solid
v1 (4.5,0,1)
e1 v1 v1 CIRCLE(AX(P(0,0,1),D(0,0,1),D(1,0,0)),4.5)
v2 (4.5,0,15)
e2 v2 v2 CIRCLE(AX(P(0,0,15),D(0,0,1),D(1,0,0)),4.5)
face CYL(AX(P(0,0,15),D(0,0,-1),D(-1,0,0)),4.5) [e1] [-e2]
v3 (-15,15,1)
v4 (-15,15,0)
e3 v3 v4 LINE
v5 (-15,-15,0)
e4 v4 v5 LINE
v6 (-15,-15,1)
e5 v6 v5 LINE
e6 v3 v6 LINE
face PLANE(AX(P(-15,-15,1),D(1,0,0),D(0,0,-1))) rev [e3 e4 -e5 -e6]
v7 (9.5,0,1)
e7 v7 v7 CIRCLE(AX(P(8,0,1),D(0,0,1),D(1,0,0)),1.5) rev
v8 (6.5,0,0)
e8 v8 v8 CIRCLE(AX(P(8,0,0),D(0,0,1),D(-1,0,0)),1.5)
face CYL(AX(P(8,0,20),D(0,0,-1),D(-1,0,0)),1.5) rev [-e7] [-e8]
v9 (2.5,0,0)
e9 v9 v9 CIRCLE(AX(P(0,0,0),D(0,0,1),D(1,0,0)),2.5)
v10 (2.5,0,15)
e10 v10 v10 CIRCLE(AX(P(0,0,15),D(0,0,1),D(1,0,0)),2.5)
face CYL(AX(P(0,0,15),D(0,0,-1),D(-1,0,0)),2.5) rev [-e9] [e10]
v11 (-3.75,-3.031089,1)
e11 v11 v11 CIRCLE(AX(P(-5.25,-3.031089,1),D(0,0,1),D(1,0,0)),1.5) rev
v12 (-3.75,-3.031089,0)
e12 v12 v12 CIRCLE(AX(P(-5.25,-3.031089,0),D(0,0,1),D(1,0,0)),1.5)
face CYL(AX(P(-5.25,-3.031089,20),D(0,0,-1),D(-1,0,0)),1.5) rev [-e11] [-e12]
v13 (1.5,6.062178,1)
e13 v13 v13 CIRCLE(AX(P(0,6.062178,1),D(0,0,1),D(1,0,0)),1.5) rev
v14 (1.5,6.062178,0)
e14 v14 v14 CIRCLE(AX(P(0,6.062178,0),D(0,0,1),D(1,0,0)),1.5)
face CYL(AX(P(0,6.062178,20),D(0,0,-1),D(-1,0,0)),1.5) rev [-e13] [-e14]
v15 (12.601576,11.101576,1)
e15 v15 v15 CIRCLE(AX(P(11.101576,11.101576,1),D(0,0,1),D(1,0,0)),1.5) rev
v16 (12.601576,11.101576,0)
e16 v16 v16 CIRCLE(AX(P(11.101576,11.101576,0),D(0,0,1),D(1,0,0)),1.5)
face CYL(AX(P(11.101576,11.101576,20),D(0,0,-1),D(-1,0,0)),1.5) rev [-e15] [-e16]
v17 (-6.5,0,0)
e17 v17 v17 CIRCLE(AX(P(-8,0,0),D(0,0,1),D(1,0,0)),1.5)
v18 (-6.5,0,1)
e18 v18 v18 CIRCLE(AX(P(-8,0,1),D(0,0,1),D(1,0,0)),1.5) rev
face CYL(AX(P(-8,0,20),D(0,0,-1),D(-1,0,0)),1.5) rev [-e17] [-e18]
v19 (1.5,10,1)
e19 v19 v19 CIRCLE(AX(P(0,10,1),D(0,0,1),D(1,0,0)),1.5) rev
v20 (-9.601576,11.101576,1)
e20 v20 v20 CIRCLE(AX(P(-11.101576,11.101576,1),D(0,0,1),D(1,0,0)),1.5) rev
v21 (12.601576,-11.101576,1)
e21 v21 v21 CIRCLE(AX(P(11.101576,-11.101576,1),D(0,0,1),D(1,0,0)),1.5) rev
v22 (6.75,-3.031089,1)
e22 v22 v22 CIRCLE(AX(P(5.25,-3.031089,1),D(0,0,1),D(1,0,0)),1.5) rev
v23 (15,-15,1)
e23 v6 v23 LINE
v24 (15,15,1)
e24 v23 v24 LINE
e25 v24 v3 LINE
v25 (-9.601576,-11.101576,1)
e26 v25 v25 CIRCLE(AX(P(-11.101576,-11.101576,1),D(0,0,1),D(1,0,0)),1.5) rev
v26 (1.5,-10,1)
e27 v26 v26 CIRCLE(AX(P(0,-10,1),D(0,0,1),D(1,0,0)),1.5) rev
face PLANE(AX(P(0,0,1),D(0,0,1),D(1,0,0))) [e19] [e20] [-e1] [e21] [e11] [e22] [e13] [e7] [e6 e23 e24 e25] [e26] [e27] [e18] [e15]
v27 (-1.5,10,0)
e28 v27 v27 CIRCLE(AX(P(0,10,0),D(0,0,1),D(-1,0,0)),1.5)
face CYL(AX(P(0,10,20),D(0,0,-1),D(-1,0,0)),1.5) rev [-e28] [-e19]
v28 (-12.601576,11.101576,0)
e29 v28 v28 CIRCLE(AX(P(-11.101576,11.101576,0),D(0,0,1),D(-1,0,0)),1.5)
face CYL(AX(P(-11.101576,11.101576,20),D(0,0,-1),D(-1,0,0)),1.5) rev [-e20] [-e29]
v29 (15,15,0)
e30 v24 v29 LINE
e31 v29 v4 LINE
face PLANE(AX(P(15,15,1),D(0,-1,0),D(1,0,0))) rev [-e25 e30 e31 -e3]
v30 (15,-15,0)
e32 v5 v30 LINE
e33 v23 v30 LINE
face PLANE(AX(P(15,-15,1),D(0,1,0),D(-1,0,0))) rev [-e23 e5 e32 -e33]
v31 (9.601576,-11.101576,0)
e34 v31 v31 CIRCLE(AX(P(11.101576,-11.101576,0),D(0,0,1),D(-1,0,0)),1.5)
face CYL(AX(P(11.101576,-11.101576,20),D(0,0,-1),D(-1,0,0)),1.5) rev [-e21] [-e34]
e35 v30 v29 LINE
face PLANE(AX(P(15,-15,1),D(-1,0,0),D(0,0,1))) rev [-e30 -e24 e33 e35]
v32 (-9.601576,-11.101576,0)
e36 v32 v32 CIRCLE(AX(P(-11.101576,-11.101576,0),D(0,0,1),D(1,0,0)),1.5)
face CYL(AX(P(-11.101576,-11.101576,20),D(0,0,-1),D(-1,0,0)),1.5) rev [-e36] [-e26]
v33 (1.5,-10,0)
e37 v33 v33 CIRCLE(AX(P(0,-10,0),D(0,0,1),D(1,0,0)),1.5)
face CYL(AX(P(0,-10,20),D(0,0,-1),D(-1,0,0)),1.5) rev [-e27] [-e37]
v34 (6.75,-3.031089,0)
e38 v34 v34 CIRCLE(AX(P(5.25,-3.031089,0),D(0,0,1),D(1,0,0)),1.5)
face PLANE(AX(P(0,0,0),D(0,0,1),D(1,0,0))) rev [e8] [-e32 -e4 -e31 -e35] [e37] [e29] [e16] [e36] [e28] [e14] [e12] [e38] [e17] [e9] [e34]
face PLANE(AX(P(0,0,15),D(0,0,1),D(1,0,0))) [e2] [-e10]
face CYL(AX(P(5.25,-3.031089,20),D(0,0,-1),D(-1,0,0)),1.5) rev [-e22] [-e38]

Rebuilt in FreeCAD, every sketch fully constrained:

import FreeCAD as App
import Part
import Sketcher
from FreeCAD import Vector
Q = App.Units.Quantity

doc = App.newDocument("Part")
body = doc.addObject("PartDesign::Body", "Body")

sketch1 = doc.addObject("Sketcher::SketchObject", "Sketch")
body.addObject(sketch1)
sketch1.AttachmentSupport = (doc.XY_Plane, [""])
sketch1.MapMode = "FlatFace"
sketch1.addGeometry(Part.Circle(Vector(0, 0, 0), Vector(0, 0, 1), 4.5), False)
sketch1.addGeometry(Part.Circle(Vector(0, 0, 0), Vector(0, 0, 1), 2.5), False)
sketch1.addConstraint(Sketcher.Constraint("Coincident", 0, 3, -1, 1))
sketch1.addConstraint(Sketcher.Constraint("Coincident", 1, 3, -1, 1))
sketch1.addConstraint(Sketcher.Constraint("Diameter", 0, Q("9 mm")))
sketch1.addConstraint(Sketcher.Constraint("Diameter", 1, Q("5 mm")))
pad1 = doc.addObject("PartDesign::Pad", "Pad")
body.addObject(pad1)
pad1.Profile = sketch1
pad1.Length = 15

sketch2 = doc.addObject("Sketcher::SketchObject", "Sketch001")
body.addObject(sketch2)
sketch2.AttachmentSupport = (doc.XY_Plane, [""])
sketch2.MapMode = "FlatFace"
sketch2.addGeometry(Part.LineSegment(Vector(-15, 15, 0), Vector(-15, -15, 0)), False)
sketch2.addGeometry(Part.LineSegment(Vector(-15, -15, 0), Vector(15, -15, 0)), False)
sketch2.addGeometry(Part.LineSegment(Vector(15, -15, 0), Vector(15, 15, 0)), False)
sketch2.addGeometry(Part.LineSegment(Vector(15, 15, 0), Vector(-15, 15, 0)), False)
sketch2.addConstraint(Sketcher.Constraint("Coincident", 0, 2, 1, 1))
sketch2.addConstraint(Sketcher.Constraint("Coincident", 1, 2, 2, 1))
sketch2.addConstraint(Sketcher.Constraint("Coincident", 2, 2, 3, 1))
sketch2.addConstraint(Sketcher.Constraint("Coincident", 3, 2, 0, 1))
sketch2.addConstraint(Sketcher.Constraint("Vertical", 0))
sketch2.addConstraint(Sketcher.Constraint("Horizontal", 1))
sketch2.addConstraint(Sketcher.Constraint("Vertical", 2))
sketch2.addConstraint(Sketcher.Constraint("Horizontal", 3))
sketch2.addConstraint(Sketcher.Constraint("Symmetric", 0, 2, 2, 2, -1, 1))
sketch2.addConstraint(Sketcher.Constraint("Equal", 3, 0))
sketch2.addConstraint(Sketcher.Constraint("DistanceX", 1, 1, 1, 2, Q("30 mm")))
pad2 = doc.addObject("PartDesign::Pad", "Pad001")
body.addObject(pad2)
pad2.Profile = sketch2
pad2.Length = 1

sketch3 = doc.addObject("Sketcher::SketchObject", "Sketch002")
body.addObject(sketch3)
sketch3.AttachmentSupport = (doc.XY_Plane, [""])
sketch3.MapMode = "FlatFace"
sketch3.addGeometry(Part.Circle(Vector(-11.1, -11.1, 0), Vector(0, 0, 1), 1.5), False)
sketch3.addGeometry(Part.Circle(Vector(11.1, -11.1, 0), Vector(0, 0, 1), 1.5), False)
sketch3.addGeometry(Part.Circle(Vector(11.1, 11.1, 0), Vector(0, 0, 1), 1.5), False)
sketch3.addGeometry(Part.Circle(Vector(-11.1, 11.1, 0), Vector(0, 0, 1), 1.5), False)
sketch3.addGeometry(Part.Circle(Vector(0, -10, 0), Vector(0, 0, 1), 1.5), False)
sketch3.addGeometry(Part.Circle(Vector(0, 10, 0), Vector(0, 0, 1), 1.5), False)
sketch3.addGeometry(Part.Circle(Vector(-8, 0, 0), Vector(0, 0, 1), 1.5), False)
sketch3.addGeometry(Part.Circle(Vector(8, 0, 0), Vector(0, 0, 1), 1.5), False)
sketch3.addGeometry(Part.Circle(Vector(0, 6.1, 0), Vector(0, 0, 1), 1.5), False)
sketch3.addGeometry(Part.Circle(Vector(5.2, -3, 0), Vector(0, 0, 1), 1.5), False)
sketch3.addGeometry(Part.Circle(Vector(-5.2, -3, 0), Vector(0, 0, 1), 1.5), False)
sketch3.addGeometry(Part.Circle(Vector(0, 0, 0), Vector(0, 0, 1), 2.5), False)
sketch3.addConstraint(Sketcher.Constraint("Coincident", 11, 3, -1, 1))
sketch3.addConstraint(Sketcher.Constraint("Equal", 0, 1))
sketch3.addConstraint(Sketcher.Constraint("Equal", 1, 2))
sketch3.addConstraint(Sketcher.Constraint("Equal", 2, 3))
sketch3.addConstraint(Sketcher.Constraint("Equal", 3, 4))
sketch3.addConstraint(Sketcher.Constraint("Equal", 4, 5))
sketch3.addConstraint(Sketcher.Constraint("Equal", 5, 6))
sketch3.addConstraint(Sketcher.Constraint("Equal", 6, 7))
sketch3.addConstraint(Sketcher.Constraint("Equal", 7, 8))
sketch3.addConstraint(Sketcher.Constraint("Equal", 8, 9))
sketch3.addConstraint(Sketcher.Constraint("Equal", 9, 10))
sketch3.addConstraint(Sketcher.Constraint("Symmetric", 0, 3, 2, 3, -1, 1))
sketch3.addConstraint(Sketcher.Constraint("Symmetric", 1, 3, 3, 3, -1, 1))
sketch3.addConstraint(Sketcher.Constraint("Symmetric", 4, 3, 5, 3, -1, 1))
sketch3.addConstraint(Sketcher.Constraint("Symmetric", 6, 3, 7, 3, -1, 1))
sketch3.addConstraint(Sketcher.Constraint("Symmetric", 0, 3, 1, 3, -2))
sketch3.addConstraint(Sketcher.Constraint("Symmetric", 9, 3, 10, 3, -2))
sketch3.addConstraint(Sketcher.Constraint("PointOnObject", 4, 3, -2))
sketch3.addConstraint(Sketcher.Constraint("PointOnObject", 6, 3, -1))
sketch3.addConstraint(Sketcher.Constraint("PointOnObject", 8, 3, -2))
sketch3.addConstraint(Sketcher.Constraint("Diameter", 0, Q("3 mm")))
sketch3.addConstraint(Sketcher.Constraint("Diameter", 11, Q("5 mm")))
sketch3.addConstraint(Sketcher.Constraint("DistanceY", 4, 3, -1, 1, Q("10 mm")))
sketch3.addConstraint(Sketcher.Constraint("DistanceX", 6, 3, -1, 1, Q("8 mm")))
sketch3.addConstraint(Sketcher.Constraint("DistanceX", 10, 3, 9, 3, Q("10.5 mm")))
sketch3.addConstraint(Sketcher.Constraint("DistanceY", 8, 3, 2, 3, Q("5.039399 mm")))
sketch3.addConstraint(Sketcher.Constraint("DistanceY", 9, 3, -1, 1, Q("3.031089 mm")))
sketch3.addConstraint(Sketcher.Constraint("DistanceX", 0, 3, -1, 1, Q("11.101576 mm")))
sketch3.addConstraint(Sketcher.Constraint("DistanceY", 0, 3, -1, 1, Q("11.101576 mm")))
pocket1 = doc.addObject("PartDesign::Pocket", "Pocket")
body.addObject(pocket1)
pocket1.Profile = sketch3
pocket1.Length = 20
pocket1.Reversed = True

doc.recompute()
